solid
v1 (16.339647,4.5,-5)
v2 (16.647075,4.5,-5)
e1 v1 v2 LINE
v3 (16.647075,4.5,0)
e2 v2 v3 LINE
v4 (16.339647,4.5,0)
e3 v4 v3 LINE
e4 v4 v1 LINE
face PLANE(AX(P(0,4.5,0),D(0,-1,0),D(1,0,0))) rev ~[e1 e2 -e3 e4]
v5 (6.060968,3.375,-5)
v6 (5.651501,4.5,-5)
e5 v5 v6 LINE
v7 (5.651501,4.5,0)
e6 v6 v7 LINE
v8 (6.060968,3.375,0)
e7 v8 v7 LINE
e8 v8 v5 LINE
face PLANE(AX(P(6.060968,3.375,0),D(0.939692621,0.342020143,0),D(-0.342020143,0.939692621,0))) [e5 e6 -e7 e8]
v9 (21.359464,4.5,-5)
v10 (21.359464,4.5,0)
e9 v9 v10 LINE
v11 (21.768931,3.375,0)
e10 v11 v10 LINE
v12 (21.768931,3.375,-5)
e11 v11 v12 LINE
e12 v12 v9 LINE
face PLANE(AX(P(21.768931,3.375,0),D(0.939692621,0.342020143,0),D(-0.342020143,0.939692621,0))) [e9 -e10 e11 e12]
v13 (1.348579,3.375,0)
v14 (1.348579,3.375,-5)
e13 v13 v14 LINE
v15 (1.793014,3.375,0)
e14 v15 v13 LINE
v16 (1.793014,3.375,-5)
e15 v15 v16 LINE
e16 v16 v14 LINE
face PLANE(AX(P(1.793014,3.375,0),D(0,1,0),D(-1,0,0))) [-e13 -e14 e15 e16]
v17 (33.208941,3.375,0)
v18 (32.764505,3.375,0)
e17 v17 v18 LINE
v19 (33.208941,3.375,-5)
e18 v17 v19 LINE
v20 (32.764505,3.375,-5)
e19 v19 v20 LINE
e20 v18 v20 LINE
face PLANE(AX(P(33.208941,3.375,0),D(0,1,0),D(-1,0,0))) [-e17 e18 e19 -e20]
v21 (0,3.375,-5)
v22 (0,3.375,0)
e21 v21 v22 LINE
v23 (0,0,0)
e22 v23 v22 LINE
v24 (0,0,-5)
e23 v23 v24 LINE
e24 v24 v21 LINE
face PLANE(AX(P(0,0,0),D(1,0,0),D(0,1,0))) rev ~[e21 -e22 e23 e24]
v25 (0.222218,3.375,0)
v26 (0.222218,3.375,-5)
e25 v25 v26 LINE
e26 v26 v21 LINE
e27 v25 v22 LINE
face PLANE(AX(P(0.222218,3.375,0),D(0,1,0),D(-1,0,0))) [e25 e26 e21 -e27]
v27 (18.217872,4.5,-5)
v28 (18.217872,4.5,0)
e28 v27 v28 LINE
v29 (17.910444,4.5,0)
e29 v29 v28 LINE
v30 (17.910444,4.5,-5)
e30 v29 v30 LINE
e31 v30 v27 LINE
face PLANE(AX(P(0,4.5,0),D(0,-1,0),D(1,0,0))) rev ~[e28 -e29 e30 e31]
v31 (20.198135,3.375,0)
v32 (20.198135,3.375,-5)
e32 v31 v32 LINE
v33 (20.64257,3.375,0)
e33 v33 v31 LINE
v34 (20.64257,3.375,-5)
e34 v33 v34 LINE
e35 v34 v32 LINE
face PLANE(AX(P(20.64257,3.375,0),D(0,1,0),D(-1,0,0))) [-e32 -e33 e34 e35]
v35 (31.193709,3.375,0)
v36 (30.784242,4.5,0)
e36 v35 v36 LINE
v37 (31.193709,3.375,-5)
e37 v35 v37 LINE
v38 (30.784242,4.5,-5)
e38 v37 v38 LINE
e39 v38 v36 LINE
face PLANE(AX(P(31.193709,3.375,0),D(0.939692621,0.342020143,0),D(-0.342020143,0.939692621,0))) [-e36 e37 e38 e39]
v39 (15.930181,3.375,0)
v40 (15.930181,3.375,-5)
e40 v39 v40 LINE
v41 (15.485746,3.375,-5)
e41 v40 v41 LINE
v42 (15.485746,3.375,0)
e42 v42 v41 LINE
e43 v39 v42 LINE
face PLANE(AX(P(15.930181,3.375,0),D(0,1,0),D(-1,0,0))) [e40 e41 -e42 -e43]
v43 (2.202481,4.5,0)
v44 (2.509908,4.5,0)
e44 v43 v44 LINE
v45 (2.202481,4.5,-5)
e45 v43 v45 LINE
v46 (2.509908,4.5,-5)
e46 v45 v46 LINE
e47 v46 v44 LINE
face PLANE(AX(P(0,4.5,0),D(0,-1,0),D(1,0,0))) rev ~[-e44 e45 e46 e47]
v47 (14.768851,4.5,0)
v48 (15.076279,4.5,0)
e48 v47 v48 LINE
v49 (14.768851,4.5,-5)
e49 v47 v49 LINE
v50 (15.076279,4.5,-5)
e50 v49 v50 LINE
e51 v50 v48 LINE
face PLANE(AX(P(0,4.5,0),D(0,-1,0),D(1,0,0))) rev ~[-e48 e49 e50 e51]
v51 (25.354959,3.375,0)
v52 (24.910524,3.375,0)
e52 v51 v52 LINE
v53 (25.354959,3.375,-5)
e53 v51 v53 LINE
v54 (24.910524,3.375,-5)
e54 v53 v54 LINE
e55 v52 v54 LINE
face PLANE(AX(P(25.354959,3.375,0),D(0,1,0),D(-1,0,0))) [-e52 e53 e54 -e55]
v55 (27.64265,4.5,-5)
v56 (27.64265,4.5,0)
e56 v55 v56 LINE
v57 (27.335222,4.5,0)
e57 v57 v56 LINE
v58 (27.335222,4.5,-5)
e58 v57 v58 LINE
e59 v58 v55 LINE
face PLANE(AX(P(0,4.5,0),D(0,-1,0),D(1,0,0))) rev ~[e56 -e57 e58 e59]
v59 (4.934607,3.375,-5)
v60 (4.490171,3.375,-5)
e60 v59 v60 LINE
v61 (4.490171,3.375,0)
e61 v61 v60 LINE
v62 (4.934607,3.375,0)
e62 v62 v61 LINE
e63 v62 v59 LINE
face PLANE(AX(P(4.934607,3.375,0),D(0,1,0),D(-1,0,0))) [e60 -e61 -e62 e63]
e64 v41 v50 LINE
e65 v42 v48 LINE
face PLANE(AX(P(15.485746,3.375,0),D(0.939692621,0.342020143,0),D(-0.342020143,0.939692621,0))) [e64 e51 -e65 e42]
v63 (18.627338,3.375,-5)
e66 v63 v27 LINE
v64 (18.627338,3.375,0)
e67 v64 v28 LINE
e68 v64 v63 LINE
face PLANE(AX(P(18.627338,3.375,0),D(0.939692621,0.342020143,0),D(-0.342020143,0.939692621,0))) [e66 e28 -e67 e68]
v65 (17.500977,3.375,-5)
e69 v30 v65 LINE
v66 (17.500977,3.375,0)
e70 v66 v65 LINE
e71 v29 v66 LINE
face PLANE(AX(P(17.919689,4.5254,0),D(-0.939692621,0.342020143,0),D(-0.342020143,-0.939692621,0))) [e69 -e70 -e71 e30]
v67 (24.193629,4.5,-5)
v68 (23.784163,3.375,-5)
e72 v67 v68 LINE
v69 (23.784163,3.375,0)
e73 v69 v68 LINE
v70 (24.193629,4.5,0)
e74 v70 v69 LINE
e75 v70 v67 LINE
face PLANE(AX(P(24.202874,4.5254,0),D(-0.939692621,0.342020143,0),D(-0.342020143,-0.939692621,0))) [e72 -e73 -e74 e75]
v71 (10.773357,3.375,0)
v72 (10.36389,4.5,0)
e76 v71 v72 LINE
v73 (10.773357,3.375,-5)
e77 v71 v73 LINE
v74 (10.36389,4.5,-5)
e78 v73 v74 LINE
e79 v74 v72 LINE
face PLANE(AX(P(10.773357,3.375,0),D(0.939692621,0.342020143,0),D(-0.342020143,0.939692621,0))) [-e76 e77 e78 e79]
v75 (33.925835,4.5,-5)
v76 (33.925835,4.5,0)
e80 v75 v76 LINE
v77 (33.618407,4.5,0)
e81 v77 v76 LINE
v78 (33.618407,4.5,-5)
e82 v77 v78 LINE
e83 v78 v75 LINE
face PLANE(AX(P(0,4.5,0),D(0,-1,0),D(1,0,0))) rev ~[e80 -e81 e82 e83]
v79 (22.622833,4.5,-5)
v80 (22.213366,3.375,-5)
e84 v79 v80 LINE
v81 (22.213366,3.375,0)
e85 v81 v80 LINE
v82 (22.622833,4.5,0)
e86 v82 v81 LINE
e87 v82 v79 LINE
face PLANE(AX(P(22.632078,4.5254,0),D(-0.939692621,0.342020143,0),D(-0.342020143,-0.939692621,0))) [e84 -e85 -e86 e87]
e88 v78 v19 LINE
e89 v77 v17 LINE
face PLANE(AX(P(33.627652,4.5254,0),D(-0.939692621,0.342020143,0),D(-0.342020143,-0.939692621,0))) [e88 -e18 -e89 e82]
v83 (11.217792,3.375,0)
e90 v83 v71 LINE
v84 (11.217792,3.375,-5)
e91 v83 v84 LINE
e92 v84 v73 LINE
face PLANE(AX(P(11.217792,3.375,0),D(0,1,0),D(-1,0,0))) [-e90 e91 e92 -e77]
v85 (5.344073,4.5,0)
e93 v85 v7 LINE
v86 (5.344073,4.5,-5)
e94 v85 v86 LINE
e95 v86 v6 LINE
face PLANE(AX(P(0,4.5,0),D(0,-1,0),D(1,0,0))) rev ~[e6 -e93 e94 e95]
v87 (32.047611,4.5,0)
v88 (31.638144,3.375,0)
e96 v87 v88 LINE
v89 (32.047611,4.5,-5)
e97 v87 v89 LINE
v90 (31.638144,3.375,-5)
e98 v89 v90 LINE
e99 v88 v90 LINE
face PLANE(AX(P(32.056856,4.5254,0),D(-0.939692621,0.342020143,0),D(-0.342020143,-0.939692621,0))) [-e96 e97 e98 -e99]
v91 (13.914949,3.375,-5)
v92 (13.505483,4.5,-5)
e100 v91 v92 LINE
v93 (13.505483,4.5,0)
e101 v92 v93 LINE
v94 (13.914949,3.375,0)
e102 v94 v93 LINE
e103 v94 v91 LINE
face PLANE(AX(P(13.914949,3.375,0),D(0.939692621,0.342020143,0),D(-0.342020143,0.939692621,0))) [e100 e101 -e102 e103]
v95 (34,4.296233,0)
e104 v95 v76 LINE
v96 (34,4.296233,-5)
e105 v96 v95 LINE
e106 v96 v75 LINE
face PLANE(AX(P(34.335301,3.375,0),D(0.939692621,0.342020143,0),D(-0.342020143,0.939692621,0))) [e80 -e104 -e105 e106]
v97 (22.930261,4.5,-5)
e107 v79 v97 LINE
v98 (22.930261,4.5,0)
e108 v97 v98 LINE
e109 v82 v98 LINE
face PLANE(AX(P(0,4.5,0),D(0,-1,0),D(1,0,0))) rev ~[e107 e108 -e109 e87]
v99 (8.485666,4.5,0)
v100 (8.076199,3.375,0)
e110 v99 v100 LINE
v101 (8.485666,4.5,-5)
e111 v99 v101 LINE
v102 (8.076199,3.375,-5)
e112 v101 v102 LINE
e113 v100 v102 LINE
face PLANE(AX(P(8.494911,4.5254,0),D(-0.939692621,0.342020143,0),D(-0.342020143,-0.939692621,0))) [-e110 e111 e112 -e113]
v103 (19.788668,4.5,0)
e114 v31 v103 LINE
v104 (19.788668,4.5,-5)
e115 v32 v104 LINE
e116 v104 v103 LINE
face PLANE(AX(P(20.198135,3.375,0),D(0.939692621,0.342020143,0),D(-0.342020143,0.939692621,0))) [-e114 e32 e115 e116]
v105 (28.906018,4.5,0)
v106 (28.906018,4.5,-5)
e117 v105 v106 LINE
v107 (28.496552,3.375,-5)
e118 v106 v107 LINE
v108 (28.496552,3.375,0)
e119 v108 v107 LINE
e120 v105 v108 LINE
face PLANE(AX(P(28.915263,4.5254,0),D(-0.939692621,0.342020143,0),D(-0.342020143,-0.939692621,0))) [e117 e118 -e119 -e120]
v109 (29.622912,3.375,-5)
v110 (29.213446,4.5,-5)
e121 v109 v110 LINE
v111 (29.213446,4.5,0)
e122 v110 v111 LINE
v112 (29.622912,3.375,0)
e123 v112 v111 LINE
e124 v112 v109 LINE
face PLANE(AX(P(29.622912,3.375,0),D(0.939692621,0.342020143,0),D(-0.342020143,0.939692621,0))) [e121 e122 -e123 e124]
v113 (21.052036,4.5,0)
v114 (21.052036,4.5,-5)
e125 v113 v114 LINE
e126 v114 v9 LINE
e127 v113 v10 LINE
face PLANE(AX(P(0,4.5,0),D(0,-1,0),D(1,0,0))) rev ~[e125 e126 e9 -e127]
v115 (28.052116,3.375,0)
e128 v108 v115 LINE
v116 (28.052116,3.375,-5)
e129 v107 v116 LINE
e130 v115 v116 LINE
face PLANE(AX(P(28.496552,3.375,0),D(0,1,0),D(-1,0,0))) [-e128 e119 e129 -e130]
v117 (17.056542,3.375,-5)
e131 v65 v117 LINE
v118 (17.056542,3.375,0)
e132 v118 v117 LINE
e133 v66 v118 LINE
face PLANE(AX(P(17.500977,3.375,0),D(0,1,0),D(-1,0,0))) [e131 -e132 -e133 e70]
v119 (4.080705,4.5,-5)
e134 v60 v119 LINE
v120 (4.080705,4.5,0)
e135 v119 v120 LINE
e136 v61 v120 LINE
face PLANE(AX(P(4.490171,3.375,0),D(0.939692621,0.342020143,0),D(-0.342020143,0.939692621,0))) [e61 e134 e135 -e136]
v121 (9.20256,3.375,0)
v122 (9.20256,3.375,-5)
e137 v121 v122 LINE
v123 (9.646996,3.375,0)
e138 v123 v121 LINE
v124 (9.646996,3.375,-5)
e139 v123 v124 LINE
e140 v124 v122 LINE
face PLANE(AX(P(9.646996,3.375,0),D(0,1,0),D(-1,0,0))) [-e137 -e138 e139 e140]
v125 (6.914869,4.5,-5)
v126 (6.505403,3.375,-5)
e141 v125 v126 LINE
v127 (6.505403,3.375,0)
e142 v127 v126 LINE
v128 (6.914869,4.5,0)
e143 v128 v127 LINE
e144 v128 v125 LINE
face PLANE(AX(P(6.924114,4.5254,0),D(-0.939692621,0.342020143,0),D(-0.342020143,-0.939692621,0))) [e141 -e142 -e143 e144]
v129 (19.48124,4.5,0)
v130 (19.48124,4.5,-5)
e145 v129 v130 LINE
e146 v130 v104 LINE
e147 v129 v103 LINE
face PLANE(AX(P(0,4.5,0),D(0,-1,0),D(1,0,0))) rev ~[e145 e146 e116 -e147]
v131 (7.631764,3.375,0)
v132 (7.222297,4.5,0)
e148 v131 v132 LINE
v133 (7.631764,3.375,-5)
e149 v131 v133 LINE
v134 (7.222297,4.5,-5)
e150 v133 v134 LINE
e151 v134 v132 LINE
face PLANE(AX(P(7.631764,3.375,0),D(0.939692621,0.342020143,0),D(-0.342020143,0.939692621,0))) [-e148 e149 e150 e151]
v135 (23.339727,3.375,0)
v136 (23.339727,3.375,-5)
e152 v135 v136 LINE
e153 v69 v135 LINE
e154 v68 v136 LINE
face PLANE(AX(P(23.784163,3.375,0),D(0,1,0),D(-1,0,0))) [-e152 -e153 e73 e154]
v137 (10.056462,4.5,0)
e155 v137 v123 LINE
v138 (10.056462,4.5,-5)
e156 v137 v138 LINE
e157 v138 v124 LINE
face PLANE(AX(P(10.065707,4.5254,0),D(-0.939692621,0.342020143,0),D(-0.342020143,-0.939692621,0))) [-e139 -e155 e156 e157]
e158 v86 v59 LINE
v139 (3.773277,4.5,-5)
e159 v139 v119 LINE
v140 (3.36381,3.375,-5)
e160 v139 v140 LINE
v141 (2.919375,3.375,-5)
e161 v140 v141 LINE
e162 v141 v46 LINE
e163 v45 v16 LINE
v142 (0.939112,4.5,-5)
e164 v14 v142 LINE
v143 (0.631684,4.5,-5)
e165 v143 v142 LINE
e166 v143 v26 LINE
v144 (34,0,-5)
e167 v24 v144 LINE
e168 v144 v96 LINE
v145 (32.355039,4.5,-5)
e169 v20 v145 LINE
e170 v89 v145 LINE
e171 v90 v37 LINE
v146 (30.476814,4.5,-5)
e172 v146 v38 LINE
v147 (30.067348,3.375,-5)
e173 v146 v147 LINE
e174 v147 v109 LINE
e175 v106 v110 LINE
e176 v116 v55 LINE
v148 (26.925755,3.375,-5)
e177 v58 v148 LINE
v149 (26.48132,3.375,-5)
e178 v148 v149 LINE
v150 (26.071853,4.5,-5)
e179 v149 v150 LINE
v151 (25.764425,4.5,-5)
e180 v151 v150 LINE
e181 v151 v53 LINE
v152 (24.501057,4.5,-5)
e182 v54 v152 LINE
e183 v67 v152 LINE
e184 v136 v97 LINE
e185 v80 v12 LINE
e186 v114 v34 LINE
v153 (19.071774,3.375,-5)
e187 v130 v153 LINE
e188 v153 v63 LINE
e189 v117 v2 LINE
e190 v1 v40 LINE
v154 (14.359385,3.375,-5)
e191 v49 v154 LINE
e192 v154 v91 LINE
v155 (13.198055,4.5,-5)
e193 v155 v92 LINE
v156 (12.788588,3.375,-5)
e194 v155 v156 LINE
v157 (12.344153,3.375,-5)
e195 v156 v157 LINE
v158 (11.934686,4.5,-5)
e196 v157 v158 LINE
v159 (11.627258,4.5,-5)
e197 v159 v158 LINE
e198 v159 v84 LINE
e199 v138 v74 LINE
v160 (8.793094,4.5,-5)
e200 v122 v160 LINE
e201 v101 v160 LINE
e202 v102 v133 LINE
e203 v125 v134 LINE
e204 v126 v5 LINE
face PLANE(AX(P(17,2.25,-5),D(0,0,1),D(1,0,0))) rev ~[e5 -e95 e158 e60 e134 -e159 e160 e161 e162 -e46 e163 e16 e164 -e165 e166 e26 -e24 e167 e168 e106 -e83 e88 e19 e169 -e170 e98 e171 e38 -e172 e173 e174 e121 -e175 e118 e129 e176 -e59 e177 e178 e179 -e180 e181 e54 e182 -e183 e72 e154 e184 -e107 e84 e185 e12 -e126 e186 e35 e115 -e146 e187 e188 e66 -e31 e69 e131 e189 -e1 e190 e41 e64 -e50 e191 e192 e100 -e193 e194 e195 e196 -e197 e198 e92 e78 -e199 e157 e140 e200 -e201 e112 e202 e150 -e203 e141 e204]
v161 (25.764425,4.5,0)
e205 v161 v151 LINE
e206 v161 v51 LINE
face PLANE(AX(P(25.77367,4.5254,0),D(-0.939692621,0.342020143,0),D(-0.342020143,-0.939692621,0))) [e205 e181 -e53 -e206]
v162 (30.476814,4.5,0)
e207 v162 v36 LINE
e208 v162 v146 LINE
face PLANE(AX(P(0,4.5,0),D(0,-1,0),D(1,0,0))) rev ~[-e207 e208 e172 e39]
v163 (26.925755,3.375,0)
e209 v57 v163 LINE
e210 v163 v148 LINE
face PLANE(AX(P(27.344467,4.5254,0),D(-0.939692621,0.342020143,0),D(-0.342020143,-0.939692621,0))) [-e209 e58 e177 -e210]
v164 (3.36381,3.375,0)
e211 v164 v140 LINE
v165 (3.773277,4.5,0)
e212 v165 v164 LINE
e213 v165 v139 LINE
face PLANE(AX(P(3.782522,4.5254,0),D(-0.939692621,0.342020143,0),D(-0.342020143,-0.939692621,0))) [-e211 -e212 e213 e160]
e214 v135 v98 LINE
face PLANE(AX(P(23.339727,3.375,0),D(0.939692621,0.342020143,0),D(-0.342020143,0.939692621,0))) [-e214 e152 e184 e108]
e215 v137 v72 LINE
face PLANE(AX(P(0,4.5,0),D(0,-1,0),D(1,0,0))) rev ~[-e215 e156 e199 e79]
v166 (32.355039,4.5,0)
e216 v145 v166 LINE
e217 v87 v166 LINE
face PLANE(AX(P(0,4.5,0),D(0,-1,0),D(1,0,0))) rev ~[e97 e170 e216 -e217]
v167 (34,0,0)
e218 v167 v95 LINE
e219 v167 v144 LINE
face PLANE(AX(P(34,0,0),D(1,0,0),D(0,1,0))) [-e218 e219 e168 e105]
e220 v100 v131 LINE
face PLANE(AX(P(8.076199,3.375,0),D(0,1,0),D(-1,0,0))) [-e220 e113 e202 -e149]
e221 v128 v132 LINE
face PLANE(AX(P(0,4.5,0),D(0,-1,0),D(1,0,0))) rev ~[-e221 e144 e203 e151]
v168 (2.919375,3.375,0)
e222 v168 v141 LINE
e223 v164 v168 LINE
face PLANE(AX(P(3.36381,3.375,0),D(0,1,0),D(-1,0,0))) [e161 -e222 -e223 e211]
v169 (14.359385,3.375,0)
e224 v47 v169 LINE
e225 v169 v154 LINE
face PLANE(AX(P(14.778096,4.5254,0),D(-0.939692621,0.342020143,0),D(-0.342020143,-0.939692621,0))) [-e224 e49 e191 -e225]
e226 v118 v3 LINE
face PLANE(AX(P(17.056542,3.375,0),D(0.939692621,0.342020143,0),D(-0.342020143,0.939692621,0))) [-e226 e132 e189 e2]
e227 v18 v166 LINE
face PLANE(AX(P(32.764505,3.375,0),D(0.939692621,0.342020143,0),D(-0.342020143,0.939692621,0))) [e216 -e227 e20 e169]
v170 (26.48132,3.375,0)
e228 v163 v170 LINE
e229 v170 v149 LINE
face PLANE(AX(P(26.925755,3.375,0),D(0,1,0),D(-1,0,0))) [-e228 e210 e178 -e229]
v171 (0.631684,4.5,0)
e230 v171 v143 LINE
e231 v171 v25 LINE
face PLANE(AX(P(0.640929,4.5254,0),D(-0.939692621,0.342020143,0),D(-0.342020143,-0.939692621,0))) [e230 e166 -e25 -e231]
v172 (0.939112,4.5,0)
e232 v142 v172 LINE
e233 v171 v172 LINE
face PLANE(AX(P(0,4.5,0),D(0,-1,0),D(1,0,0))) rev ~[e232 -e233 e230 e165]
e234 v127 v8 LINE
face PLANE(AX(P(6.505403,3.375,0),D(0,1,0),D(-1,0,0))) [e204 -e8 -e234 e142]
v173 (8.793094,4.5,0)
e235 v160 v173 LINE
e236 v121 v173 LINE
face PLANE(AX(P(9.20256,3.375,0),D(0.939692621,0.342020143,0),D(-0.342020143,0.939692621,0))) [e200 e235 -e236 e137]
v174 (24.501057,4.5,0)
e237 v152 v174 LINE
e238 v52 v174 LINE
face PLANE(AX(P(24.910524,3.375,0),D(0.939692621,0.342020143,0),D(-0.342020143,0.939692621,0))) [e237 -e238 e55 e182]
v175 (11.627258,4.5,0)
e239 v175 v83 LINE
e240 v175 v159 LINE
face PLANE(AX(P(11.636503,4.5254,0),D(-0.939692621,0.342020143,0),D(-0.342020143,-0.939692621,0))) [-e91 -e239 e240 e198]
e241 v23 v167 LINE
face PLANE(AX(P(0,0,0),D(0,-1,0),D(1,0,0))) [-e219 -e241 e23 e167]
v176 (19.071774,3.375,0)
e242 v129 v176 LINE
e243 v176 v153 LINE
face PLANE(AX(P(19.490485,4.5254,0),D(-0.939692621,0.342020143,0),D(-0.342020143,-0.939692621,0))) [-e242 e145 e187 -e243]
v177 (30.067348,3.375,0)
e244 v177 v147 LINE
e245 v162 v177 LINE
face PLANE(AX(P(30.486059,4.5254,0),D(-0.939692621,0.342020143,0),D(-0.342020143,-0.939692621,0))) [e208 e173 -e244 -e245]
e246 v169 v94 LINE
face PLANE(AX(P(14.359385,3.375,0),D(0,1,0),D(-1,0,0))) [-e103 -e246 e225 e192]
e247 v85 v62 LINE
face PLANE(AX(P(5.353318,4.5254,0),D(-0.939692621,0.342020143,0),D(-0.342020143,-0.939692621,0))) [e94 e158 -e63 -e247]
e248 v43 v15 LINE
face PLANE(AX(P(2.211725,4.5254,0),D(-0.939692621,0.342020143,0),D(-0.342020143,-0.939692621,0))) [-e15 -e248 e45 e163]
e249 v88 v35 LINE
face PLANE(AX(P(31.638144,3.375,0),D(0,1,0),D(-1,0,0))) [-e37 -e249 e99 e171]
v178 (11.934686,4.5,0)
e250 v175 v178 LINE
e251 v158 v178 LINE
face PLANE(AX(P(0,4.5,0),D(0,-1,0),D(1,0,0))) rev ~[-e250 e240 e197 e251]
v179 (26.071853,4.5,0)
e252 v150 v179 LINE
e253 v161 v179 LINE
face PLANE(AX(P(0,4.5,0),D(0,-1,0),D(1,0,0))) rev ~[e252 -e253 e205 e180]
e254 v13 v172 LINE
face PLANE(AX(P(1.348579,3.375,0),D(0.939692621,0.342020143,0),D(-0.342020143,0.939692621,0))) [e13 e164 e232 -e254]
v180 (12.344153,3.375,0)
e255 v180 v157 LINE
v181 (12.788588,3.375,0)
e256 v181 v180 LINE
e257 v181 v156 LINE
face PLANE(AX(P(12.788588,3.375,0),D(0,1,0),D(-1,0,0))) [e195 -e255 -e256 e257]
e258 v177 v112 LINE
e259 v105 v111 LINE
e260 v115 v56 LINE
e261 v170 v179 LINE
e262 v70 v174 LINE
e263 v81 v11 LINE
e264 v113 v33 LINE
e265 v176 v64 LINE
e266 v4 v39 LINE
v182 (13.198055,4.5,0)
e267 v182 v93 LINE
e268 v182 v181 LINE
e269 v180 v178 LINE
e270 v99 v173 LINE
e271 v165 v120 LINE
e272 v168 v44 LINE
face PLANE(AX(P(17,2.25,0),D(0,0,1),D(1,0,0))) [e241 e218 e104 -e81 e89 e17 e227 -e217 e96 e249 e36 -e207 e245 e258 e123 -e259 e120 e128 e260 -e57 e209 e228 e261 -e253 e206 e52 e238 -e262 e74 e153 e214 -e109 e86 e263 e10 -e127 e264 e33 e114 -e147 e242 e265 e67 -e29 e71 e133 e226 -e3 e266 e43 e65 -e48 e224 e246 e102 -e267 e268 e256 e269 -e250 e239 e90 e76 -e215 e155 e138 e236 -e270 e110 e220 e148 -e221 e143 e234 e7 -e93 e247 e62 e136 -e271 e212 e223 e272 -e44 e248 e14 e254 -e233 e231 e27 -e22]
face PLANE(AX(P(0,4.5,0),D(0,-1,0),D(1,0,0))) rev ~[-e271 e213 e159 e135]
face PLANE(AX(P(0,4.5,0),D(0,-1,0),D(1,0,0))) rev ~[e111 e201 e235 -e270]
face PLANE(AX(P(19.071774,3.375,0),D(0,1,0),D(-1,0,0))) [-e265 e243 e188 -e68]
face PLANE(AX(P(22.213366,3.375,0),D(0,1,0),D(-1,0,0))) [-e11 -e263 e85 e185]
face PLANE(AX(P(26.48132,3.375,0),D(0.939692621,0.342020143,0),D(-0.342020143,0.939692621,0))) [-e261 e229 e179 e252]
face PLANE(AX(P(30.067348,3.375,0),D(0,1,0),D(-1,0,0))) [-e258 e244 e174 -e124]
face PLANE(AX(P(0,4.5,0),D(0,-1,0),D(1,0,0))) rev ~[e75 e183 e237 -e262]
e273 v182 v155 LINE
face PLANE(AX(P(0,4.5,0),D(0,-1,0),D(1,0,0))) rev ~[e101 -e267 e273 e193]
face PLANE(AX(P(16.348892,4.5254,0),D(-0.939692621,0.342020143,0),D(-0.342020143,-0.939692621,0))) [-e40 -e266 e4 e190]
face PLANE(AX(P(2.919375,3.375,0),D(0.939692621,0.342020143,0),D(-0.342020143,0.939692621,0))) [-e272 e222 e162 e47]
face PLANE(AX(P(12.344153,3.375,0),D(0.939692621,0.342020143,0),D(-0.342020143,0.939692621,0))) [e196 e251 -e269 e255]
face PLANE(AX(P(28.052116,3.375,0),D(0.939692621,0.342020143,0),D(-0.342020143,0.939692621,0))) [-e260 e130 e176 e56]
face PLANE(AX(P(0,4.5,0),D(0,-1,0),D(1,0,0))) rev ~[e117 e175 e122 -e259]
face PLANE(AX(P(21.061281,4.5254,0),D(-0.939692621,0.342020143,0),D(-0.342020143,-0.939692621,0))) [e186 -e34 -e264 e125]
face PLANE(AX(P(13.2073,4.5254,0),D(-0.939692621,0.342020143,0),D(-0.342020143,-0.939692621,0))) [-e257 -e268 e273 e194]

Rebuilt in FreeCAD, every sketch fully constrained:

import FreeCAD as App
import Part
import Sketcher

V = App.Vector
Q = App.Units.Quantity


def add_polygon(sketch, points):
    """Adds a closed chain of lines whose ends are joined by coincident constraints."""
    first, n = sketch.GeometryCount, len(points)
    for a, b in zip(points, points[1:] + points[:1]):
        sketch.addGeometry(Part.LineSegment(App.Vector(*a, 0), App.Vector(*b, 0)), False)
    for i in range(n):
        sketch.addConstraint(Sketcher.Constraint("Coincident", first + i, 2, first + (i + 1) % n, 1))

doc = App.newDocument("Part")
body = doc.addObject("PartDesign::Body", "Body")

sketch1 = body.newObject("Sketcher::SketchObject", "Sketch")
sketch1.AttachmentSupport = (doc.getObject("XY_Plane"), [""])
sketch1.MapMode = "FlatFace"
add_polygon(sketch1, [(0, 4.5), (0, 0), (34, 0), (34, 4.5)])
sketch1.addConstraint(Sketcher.Constraint("Vertical", 0))
sketch1.addConstraint(Sketcher.Constraint("Horizontal", 1))
sketch1.addConstraint(Sketcher.Constraint("Vertical", 2))
sketch1.addConstraint(Sketcher.Constraint("Horizontal", 3))
sketch1.addConstraint(Sketcher.Constraint("Coincident", 0, 2, -1, 1))
sketch1.addConstraint(Sketcher.Constraint("DistanceX", 1, 1, 1, 2, Q("34 mm")))
sketch1.addConstraint(Sketcher.Constraint("DistanceY", 0, 2, 0, 1, Q("4.5 mm")))
pad1 = body.newObject("PartDesign::Pad", "Pad")
pad1.Profile = sketch1
pad1.Length = 5
pad1.Reversed = True

sketch2 = body.newObject("Sketcher::SketchObject", "Sketch001")
sketch2.AttachmentSupport = (doc.getObject("XY_Plane"), [""])
sketch2.MapMode = "FlatFace"
add_polygon(sketch2, [(-0.222218, 3.375), (0.222218, 3.375), (0.640929, 4.5254), (-0.640929, 4.5254)])
sketch2.addConstraint(Sketcher.Constraint("Horizontal", 0))
sketch2.addConstraint(Sketcher.Constraint("Horizontal", 2))
sketch2.addConstraint(Sketcher.Constraint("Equal", 1, 3))
sketch2.addConstraint(Sketcher.Constraint("Angle", 1, Q("70 deg")))
sketch2.addConstraint(Sketcher.Constraint("DistanceY", -1, 1, 0, 2, Q("3.375 mm")))
sketch2.addConstraint(Sketcher.Constraint("DistanceX", 2, 2, 2, 1, Q("1.281858 mm")))
sketch2.addConstraint(Sketcher.Constraint("DistanceY", -1, 1, 1, 2, Q("4.5254 mm")))
sketch2.addConstraint(Sketcher.Constraint("DistanceX", -1, 1, 1, 2, Q("0.640929 mm")))
pocket1 = body.newObject("PartDesign::Pocket", "Pocket")
pocket1.Profile = sketch2
pocket1.Type = "ThroughAll"
doc.recompute()

linearpattern = body.newObject("PartDesign::LinearPattern", "LinearPattern")
linearpattern.Originals = [pocket1]
linearpattern.Direction = (doc.getObject("X_Axis"), [""])
linearpattern.Mode = "offset"
linearpattern.Offset = 1.570796
linearpattern.Occurrences = 23
body.Tip = linearpattern

doc.recompute()
